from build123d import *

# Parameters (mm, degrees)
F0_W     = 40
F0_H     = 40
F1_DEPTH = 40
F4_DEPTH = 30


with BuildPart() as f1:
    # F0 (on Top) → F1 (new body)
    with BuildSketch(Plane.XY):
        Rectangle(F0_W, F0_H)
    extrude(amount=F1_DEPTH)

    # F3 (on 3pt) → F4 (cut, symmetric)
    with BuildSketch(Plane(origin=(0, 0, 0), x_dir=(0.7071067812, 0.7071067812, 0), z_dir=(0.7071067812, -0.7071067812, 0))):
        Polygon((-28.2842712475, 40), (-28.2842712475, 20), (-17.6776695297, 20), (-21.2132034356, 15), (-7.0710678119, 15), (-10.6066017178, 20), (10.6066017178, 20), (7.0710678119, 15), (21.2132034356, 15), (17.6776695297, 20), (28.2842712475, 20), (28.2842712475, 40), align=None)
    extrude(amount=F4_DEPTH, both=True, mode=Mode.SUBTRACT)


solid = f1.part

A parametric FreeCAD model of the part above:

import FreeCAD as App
import Part
import Sketcher

V = App.Vector
Q = App.Units.Quantity

doc = App.newDocument("Part")
params = doc.addObject("Spreadsheet::Sheet", "Params")
for row, (alias, value) in enumerate([
    ("sketch1_width", "40 mm"),
    ("pad1_length", "40 mm"),
    ("sketch2_height", "20 mm"),
    ("pocket1_length", "60 mm"),
], start=1):
    params.set(f"A{row}", alias)
    params.set(f"B{row}", "=" + value)
    params.setAlias(f"B{row}", alias)

body = doc.addObject("PartDesign::Body", "Body")

sketch1 = doc.addObject("Sketcher::SketchObject", "Sketch")
body.addObject(sketch1)
sketch1.AttachmentSupport = (doc.XY_Plane, [""])
sketch1.MapMode = "FlatFace"
sketch1.addGeometry([
    Part.LineSegment(V(-20, 20, 0), V(-20, -20, 0)),
    Part.LineSegment(V(-20, -20, 0), V(20, -20, 0)),
    Part.LineSegment(V(20, -20, 0), V(20, 20, 0)),
    Part.LineSegment(V(20, 20, 0), V(-20, 20, 0)),
], False)
sketch1.addConstraint([
    Sketcher.Constraint("Coincident", 0, 2, 1, 1),
    Sketcher.Constraint("Coincident", 1, 2, 2, 1),
    Sketcher.Constraint("Coincident", 2, 2, 3, 1),
    Sketcher.Constraint("Coincident", 3, 2, 0, 1),
    Sketcher.Constraint("Vertical", 0),
    Sketcher.Constraint("Horizontal", 1),
    Sketcher.Constraint("Vertical", 2),
    Sketcher.Constraint("Horizontal", 3),
    Sketcher.Constraint("Symmetric", 0, 2, 2, 2, -1, 1),
    Sketcher.Constraint("Equal", 3, 0),
    Sketcher.Constraint("DistanceX", 1, 1, 1, 2, Q("40 mm")),
])
sketch1.setExpression("Constraints[10]", "Params.sketch1_width")
pad1 = doc.addObject("PartDesign::Pad", "Pad")
body.addObject(pad1)
pad1.Profile = sketch1
pad1.setExpression("Length", "Params.pad1_length")

sketch2 = doc.addObject("Sketcher::SketchObject", "Sketch001")
body.addObject(sketch2)
sketch2.Placement = App.Placement(V(0, 0, 0), App.Rotation(V(0.707106781, 0.707106781, 0), V(0, 0, 0.999999999), V(0.707106781, -0.707106781, 0), "ZXY"))
sketch2.addGeometry([
    Part.LineSegment(V(-28, 40, 0), V(-28, 20, 0)),
    Part.LineSegment(V(-28, 20, 0), V(-18, 20, 0)),
    Part.LineSegment(V(-18, 20, 0), V(-21, 15, 0)),
    Part.LineSegment(V(-21, 15, 0), V(-7, 15, 0)),
    Part.LineSegment(V(-7, 15, 0), V(-11, 20, 0)),
    Part.LineSegment(V(-11, 20, 0), V(11, 20, 0)),
    Part.LineSegment(V(11, 20, 0), V(7, 15, 0)),
    Part.LineSegment(V(7, 15, 0), V(21, 15, 0)),
    Part.LineSegment(V(21, 15, 0), V(18, 20, 0)),
    Part.LineSegment(V(18, 20, 0), V(28, 20, 0)),
    Part.LineSegment(V(28, 20, 0), V(28, 40, 0)),
    Part.LineSegment(V(28, 40, 0), V(-28, 40, 0)),
], False)
sketch2.addConstraint([
    Sketcher.Constraint("Coincident", 0, 2, 1, 1),
    Sketcher.Constraint("Coincident", 1, 2, 2, 1),
    Sketcher.Constraint("Coincident", 2, 2, 3, 1),
    Sketcher.Constraint("Coincident", 3, 2, 4, 1),
    Sketcher.Constraint("Coincident", 4, 2, 5, 1),
    Sketcher.Constraint("Coincident", 5, 2, 6, 1),
    Sketcher.Constraint("Coincident", 6, 2, 7, 1),
    Sketcher.Constraint("Coincident", 7, 2, 8, 1),
    Sketcher.Constraint("Coincident", 8, 2, 9, 1),
    Sketcher.Constraint("Coincident", 9, 2, 10, 1),
    Sketcher.Constraint("Coincident", 10, 2, 11, 1),
    Sketcher.Constraint("Coincident", 11, 2, 0, 1),
    Sketcher.Constraint("Vertical", 0),
    Sketcher.Constraint("Horizontal", 1),
    Sketcher.Constraint("Horizontal", 3),
    Sketcher.Constraint("Horizontal", 5),
    Sketcher.Constraint("Horizontal", 7),
    Sketcher.Constraint("Horizontal", 9),
    Sketcher.Constraint("Vertical", 10),
    Sketcher.Constraint("Horizontal", 11),
    Sketcher.Constraint("Symmetric", 3, 2, 6, 2, -2),
    Sketcher.Constraint("Symmetric", 1, 2, 8, 2, -2),
    Sketcher.Constraint("Parallel", 2, 6),
    Sketcher.Constraint("Parallel", 4, 8),
    Sketcher.Constraint("Horizontal", 1, 2, 4, 2),
    Sketcher.Constraint("Equal", 3, 7),
    Sketcher.Constraint("Equal", 1, 9),
    Sketcher.Constraint("DistanceY", 0, 2, 0, 1, Q("20 mm")),
    Sketcher.Constraint("DistanceY", -1, 1, 0, 2, Q("20 mm")),
    Sketcher.Constraint("DistanceY", -1, 1, 2, 2, Q("15 mm")),
    Sketcher.Constraint("DistanceX", 1, 1, 1, 2, Q("10.606602 mm")),
    Sketcher.Constraint("DistanceX", 4, 2, -1, 1, Q("10.606602 mm")),
    Sketcher.Constraint("DistanceX", 1, 2, 3, 2, Q("10.606602 mm")),
    Sketcher.Constraint("DistanceX", 3, 1, 3, 2, Q("14.142136 mm")),
])
sketch2.setExpression("Constraints[27]", "Params.sketch2_height")
pocket1 = doc.addObject("PartDesign::Pocket", "Pocket")
body.addObject(pocket1)
pocket1.Profile = sketch2
pocket1.setExpression("Length", "Params.pocket1_length")
pocket1.Midplane = True

doc.recompute()
